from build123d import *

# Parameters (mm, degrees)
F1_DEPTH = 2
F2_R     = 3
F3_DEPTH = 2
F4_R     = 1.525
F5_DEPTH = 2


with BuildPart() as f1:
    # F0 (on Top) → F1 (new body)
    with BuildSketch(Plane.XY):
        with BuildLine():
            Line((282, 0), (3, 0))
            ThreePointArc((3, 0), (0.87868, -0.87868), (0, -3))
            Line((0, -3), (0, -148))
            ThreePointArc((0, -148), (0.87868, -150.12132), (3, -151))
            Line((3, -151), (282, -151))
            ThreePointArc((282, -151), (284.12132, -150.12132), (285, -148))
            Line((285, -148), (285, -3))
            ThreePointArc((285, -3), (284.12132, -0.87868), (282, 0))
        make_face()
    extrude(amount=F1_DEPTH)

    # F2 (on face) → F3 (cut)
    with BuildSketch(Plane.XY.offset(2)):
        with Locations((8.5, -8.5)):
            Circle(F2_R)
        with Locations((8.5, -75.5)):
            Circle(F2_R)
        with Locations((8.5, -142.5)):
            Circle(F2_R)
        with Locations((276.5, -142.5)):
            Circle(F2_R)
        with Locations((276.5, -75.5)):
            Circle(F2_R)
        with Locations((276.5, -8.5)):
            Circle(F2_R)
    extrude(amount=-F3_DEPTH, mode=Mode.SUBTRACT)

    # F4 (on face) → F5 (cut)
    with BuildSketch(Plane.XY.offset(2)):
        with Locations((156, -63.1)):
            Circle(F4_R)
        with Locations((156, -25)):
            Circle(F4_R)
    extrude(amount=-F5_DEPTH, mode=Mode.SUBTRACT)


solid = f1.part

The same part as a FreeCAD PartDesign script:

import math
import FreeCAD as App
import Part
import Sketcher
Q = App.Units.Quantity

doc = App.newDocument("Part")
params = doc.addObject("Spreadsheet::Sheet", "Params")
for row, (alias, value) in enumerate([
    ("sketch1_radius", "3.000001 mm"),
    ("sketch1_width", "279 mm"),
    ("sketch1_height", "145 mm"),
    ("pad1_length", "2 mm"),
    ("sketch2_diameter", "6 mm"),
    ("pocket1_length", "2 mm"),
    ("sketch3_diameter", "3.05 mm"),
    ("pocket2_length", "2 mm"),
], start=1):
    params.set(f"A{row}", alias)
    params.set(f"B{row}", "=" + value)
    params.setAlias(f"B{row}", alias)

body = doc.addObject("PartDesign::Body", "Body")

sketch1 = body.newObject("Sketcher::SketchObject", "Sketch")
sketch1.AttachmentSupport = (doc.getObject("XY_Plane"), [""])
sketch1.MapMode = "FlatFace"
sketch1.addGeometry([
    Part.LineSegment(App.Vector(282, 0, 0), App.Vector(3, 0, 0)),
    Part.ArcOfCircle(Part.Circle(App.Vector(3.000001, -3.000001, 0), App.Vector(0, 0, 1), 3.000001), math.radians(90.000022), math.radians(179.999978)),
    Part.LineSegment(App.Vector(0, -3, 0), App.Vector(0, -148, 0)),
    Part.ArcOfCircle(Part.Circle(App.Vector(3.000001, -147.999999, 0), App.Vector(0, 0, 1), 3.000001), math.radians(-179.999978), math.radians(-90.000022)),
    Part.LineSegment(App.Vector(3, -151, 0), App.Vector(282, -151, 0)),
    Part.ArcOfCircle(Part.Circle(App.Vector(281.999999, -147.999999, 0), App.Vector(0, 0, 1), 3.000001), math.radians(-89.999978), math.radians(-0.000022)),
    Part.LineSegment(App.Vector(285, -148, 0), App.Vector(285, -3, 0)),
    Part.ArcOfCircle(Part.Circle(App.Vector(281.999999, -3.000001, 0), App.Vector(0, 0, 1), 3.000001), math.radians(0.000022), math.radians(89.999978)),
], False)
sketch1.addConstraint([
    Sketcher.Constraint("Tangent", 0, 2, 1, 1),
    Sketcher.Constraint("Tangent", 1, 2, 2, 1),
    Sketcher.Constraint("Tangent", 2, 2, 3, 1),
    Sketcher.Constraint("Tangent", 3, 2, 4, 1),
    Sketcher.Constraint("Tangent", 4, 2, 5, 1),
    Sketcher.Constraint("Tangent", 5, 2, 6, 1),
    Sketcher.Constraint("Tangent", 6, 2, 7, 1),
    Sketcher.Constraint("Tangent", 7, 2, 0, 1),
    Sketcher.Constraint("Horizontal", 0),
    Sketcher.Constraint("Vertical", 2),
    Sketcher.Constraint("Horizontal", 4),
    Sketcher.Constraint("Vertical", 6),
    Sketcher.Constraint("Equal", 1, 3),
    Sketcher.Constraint("Equal", 3, 5),
    Sketcher.Constraint("Equal", 5, 7),
    Sketcher.Constraint("PointOnObject", 0, 2, -1),
    Sketcher.Constraint("PointOnObject", 1, 2, -2),
    Sketcher.Constraint("Radius", 1, Q("3.000001 mm")),
    Sketcher.Constraint("DistanceX", 0, 2, 0, 1, Q("279 mm")),
    Sketcher.Constraint("DistanceY", 2, 2, 2, 1, Q("145 mm")),
])
sketch1.setExpression("Constraints[17]", "Params.sketch1_radius")
sketch1.setExpression("Constraints[18]", "Params.sketch1_width")
sketch1.setExpression("Constraints[19]", "Params.sketch1_height")
pad1 = body.newObject("PartDesign::Pad", "Pad")
pad1.Profile = sketch1
pad1.setExpression("Length", "Params.pad1_length")

sketch2 = body.newObject("Sketcher::SketchObject", "Sketch001")
sketch2.AttachmentSupport = (doc.getObject("XY_Plane"), [""])
sketch2.MapMode = "FlatFace"
sketch2.AttachmentOffset = App.Placement(App.Vector(0, 0, 2), App.Rotation())
sketch2.addGeometry([
    Part.Circle(App.Vector(8.5, -8.5, 0), App.Vector(0, 0, 1), 3),
    Part.Circle(App.Vector(8.5, -75.5, 0), App.Vector(0, 0, 1), 3),
    Part.Circle(App.Vector(8.5, -142.5, 0), App.Vector(0, 0, 1), 3),
    Part.Circle(App.Vector(276.5, -142.5, 0), App.Vector(0, 0, 1), 3),
    Part.Circle(App.Vector(276.5, -75.5, 0), App.Vector(0, 0, 1), 3),
    Part.Circle(App.Vector(276.5, -8.5, 0), App.Vector(0, 0, 1), 3),
], False)
sketch2.addConstraint([
    Sketcher.Constraint("Equal", 0, 1),
    Sketcher.Constraint("Equal", 1, 2),
    Sketcher.Constraint("Equal", 2, 3),
    Sketcher.Constraint("Equal", 3, 4),
    Sketcher.Constraint("Equal", 4, 5),
    Sketcher.Constraint("Horizontal", 2, 3, 3, 3),
    Sketcher.Constraint("Horizontal", 1, 3, 4, 3),
    Sketcher.Constraint("Horizontal", 0, 3, 5, 3),
    Sketcher.Constraint("Vertical", 0, 3, 1, 3),
    Sketcher.Constraint("Vertical", 1, 3, 2, 3),
    Sketcher.Constraint("Vertical", 3, 3, 4, 3),
    Sketcher.Constraint("Vertical", 4, 3, 5, 3),
    Sketcher.Constraint("Diameter", 0, Q("6 mm")),
    Sketcher.Constraint("DistanceY", 1, 3, 0, 3, Q("67 mm")),
    Sketcher.Constraint("DistanceY", 2, 3, 1, 3, Q("67 mm")),
    Sketcher.Constraint("DistanceX", 2, 3, 3, 3, Q("268 mm")),
    Sketcher.Constraint("DistanceX", -1, 1, 0, 3, Q("8.5 mm")),
    Sketcher.Constraint("DistanceY", 0, 3, -1, 1, Q("8.5 mm")),
])
sketch2.setExpression("Constraints[12]", "Params.sketch2_diameter")
pocket1 = body.newObject("PartDesign::Pocket", "Pocket")
pocket1.Profile = sketch2
pocket1.setExpression("Length", "Params.pocket1_length")

sketch3 = body.newObject("Sketcher::SketchObject", "Sketch002")
sketch3.AttachmentSupport = (doc.getObject("XY_Plane"), [""])
sketch3.MapMode = "FlatFace"
sketch3.AttachmentOffset = App.Placement(App.Vector(0, 0, 2), App.Rotation())
sketch3.addGeometry([
    Part.Circle(App.Vector(156, -63.1, 0), App.Vector(0, 0, 1), 1.525),
    Part.Circle(App.Vector(156, -25, 0), App.Vector(0, 0, 1), 1.525),
], False)
sketch3.addConstraint([
    Sketcher.Constraint("Equal", 0, 1),
    Sketcher.Constraint("Vertical", 0, 3, 1, 3),
    Sketcher.Constraint("Diameter", 0, Q("3.05 mm")),
    Sketcher.Constraint("DistanceX", -1, 1, 0, 3, Q("156 mm")),
    Sketcher.Constraint("DistanceY", 1, 3, -1, 1, Q("25 mm")),
    Sketcher.Constraint("DistanceY", 0, 3, -1, 1, Q("63.1 mm")),
])
sketch3.setExpression("Constraints[2]", "Params.sketch3_diameter")
pocket2 = body.newObject("PartDesign::Pocket", "Pocket001")
pocket2.Profile = sketch3
pocket2.setExpression("Length", "Params.pocket2_length")

doc.recompute()
